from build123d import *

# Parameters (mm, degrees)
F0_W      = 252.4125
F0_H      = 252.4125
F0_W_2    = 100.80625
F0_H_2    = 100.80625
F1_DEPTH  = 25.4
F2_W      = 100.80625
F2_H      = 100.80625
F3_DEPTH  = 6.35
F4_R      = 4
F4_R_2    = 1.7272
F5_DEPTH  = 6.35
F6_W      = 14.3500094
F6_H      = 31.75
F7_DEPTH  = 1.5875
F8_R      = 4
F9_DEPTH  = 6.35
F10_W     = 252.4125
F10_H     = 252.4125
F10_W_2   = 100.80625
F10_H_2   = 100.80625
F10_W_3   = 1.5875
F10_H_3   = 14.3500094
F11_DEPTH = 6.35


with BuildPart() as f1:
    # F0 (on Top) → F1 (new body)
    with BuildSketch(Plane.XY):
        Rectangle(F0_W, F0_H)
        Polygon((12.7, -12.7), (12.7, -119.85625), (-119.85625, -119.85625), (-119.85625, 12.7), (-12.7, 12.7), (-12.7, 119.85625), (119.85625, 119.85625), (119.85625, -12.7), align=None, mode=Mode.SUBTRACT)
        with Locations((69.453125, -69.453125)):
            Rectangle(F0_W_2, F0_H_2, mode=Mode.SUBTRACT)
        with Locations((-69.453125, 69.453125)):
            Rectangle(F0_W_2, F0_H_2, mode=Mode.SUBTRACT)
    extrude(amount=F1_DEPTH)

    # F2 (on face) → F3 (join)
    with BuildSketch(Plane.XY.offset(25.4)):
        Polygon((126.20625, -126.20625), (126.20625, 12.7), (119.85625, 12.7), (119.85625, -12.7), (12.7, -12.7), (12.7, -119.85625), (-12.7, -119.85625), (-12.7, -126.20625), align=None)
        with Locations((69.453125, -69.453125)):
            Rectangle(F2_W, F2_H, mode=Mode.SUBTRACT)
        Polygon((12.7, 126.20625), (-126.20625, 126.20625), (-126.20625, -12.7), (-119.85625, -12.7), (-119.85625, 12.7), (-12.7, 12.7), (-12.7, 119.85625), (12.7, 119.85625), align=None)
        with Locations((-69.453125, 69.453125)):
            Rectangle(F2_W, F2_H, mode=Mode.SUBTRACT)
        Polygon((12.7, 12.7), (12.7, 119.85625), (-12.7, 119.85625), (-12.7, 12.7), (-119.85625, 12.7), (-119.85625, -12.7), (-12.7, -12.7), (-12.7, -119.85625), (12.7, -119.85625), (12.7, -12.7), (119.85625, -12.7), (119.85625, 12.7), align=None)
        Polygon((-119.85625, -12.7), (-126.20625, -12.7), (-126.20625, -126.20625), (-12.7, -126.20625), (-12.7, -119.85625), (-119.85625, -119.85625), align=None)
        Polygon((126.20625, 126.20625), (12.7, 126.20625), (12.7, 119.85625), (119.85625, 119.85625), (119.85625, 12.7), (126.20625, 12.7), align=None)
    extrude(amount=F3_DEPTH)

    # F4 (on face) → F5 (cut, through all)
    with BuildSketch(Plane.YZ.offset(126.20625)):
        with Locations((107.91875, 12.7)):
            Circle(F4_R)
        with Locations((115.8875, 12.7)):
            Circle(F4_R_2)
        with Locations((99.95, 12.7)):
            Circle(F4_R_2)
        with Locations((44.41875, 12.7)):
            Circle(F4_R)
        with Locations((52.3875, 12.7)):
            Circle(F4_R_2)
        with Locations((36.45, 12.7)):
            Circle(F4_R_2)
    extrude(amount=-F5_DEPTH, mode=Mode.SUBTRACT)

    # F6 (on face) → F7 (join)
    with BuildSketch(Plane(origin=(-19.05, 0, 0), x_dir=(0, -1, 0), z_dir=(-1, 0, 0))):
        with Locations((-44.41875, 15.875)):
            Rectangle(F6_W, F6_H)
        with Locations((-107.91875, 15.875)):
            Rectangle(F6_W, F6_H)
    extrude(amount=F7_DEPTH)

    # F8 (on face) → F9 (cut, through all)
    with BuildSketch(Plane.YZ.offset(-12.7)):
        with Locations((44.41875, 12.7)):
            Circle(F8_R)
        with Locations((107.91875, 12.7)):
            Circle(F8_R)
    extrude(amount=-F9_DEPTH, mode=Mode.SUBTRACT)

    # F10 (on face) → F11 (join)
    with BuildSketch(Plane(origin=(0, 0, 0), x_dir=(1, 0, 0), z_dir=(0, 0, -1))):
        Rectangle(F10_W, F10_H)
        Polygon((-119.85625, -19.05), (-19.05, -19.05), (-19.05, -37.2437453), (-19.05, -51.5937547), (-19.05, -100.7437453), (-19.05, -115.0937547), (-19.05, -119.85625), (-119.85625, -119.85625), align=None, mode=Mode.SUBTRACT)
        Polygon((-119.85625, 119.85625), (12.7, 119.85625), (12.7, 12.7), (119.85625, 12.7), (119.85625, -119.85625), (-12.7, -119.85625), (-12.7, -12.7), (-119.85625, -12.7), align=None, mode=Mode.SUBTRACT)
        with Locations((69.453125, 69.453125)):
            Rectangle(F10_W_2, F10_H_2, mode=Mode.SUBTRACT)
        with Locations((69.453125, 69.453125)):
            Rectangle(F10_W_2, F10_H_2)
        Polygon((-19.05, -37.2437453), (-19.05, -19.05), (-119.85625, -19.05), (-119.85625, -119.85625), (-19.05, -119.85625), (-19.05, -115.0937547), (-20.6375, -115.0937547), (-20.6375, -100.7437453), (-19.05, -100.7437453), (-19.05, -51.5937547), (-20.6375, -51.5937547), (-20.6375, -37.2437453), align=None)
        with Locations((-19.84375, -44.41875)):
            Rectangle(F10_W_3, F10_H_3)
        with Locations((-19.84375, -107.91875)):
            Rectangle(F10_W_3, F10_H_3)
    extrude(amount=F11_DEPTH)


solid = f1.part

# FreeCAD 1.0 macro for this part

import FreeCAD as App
import Part
import Sketcher

V = App.Vector
Q = App.Units.Quantity

doc = App.newDocument("Part")
params = doc.addObject("Spreadsheet::Sheet", "Params")
for row, (alias, value) in enumerate([
    ("sketch1_width", "9.9375 in"),
    ("sketch1_width2", "4.21875 in"),
    ("pad1_length", "1 in"),
    ("sketch2_width", "9.9375 in"),
    ("sketch2_width2", "4.21875 in"),
    ("pad2_length", "0.25 in"),
    ("sketch3_diameter", "0.136 in"),
    ("pocket1_length", "0.25 in"),
    ("sketch4_height", "1.25 in"),
    ("pad3_length", "0.0625 in"),
    ("pocket2_length", "0.25 in"),
    ("sketch6_width", "9.9375 in"),
    ("sketch6_width2", "5.21875 in"),
    ("pad4_length", "0.25 in"),
], start=1):
    params.set(f"A{row}", alias)
    params.set(f"B{row}", "=" + value)
    params.setAlias(f"B{row}", alias)

body = doc.addObject("PartDesign::Body", "Body")

sketch1 = body.newObject("Sketcher::SketchObject", "Sketch")
sketch1.AttachmentSupport = (doc.getObject("XY_Plane"), [""])
sketch1.MapMode = "FlatFace"
sketch1.addGeometry([
    Part.LineSegment(V(-126, 126, 0), V(-126, -126, 0)),
    Part.LineSegment(V(-126, -126, 0), V(126, -126, 0)),
    Part.LineSegment(V(126, -126, 0), V(126, 126, 0)),
    Part.LineSegment(V(126, 126, 0), V(-126, 126, 0)),
    Part.LineSegment(V(120, -13, 0), V(13, -13, 0)),
    Part.LineSegment(V(13, -13, 0), V(13, -120, 0)),
    Part.LineSegment(V(13, -120, 0), V(-120, -120, 0)),
    Part.LineSegment(V(-120, -120, 0), V(-120, 13, 0)),
    Part.LineSegment(V(-120, 13, 0), V(-13, 13, 0)),
    Part.LineSegment(V(-13, 13, 0), V(-13, 120, 0)),
    Part.LineSegment(V(-13, 120, 0), V(120, 120, 0)),
    Part.LineSegment(V(120, 120, 0), V(120, -13, 0)),
    Part.LineSegment(V(120, -120, 0), V(19, -120, 0)),
    Part.LineSegment(V(19, -120, 0), V(19, -19, 0)),
    Part.LineSegment(V(19, -19, 0), V(120, -19, 0)),
    Part.LineSegment(V(120, -19, 0), V(120, -120, 0)),
    Part.LineSegment(V(-19, 19, 0), V(-120, 19, 0)),
    Part.LineSegment(V(-120, 19, 0), V(-120, 120, 0)),
    Part.LineSegment(V(-120, 120, 0), V(-19, 120, 0)),
    Part.LineSegment(V(-19, 120, 0), V(-19, 19, 0)),
], False)
sketch1.addConstraint([
    Sketcher.Constraint("Coincident", 0, 2, 1, 1),
    Sketcher.Constraint("Coincident", 1, 2, 2, 1),
    Sketcher.Constraint("Coincident", 2, 2, 3, 1),
    Sketcher.Constraint("Coincident", 3, 2, 0, 1),
    Sketcher.Constraint("Coincident", 4, 2, 5, 1),
    Sketcher.Constraint("Coincident", 5, 2, 6, 1),
    Sketcher.Constraint("Coincident", 6, 2, 7, 1),
    Sketcher.Constraint("Coincident", 7, 2, 8, 1),
    Sketcher.Constraint("Coincident", 8, 2, 9, 1),
    Sketcher.Constraint("Coincident", 9, 2, 10, 1),
    Sketcher.Constraint("Coincident", 10, 2, 11, 1),
    Sketcher.Constraint("Coincident", 11, 2, 4, 1),
    Sketcher.Constraint("Coincident", 12, 2, 13, 1),
    Sketcher.Constraint("Coincident", 13, 2, 14, 1),
    Sketcher.Constraint("Coincident", 14, 2, 15, 1),
    Sketcher.Constraint("Coincident", 15, 2, 12, 1),
    Sketcher.Constraint("Coincident", 16, 2, 17, 1),
    Sketcher.Constraint("Coincident", 17, 2, 18, 1),
    Sketcher.Constraint("Coincident", 18, 2, 19, 1),
    Sketcher.Constraint("Coincident", 19, 2, 16, 1),
    Sketcher.Constraint("Vertical", 0),
    Sketcher.Constraint("Horizontal", 1),
    Sketcher.Constraint("Vertical", 2),
    Sketcher.Constraint("Horizontal", 3),
    Sketcher.Constraint("Horizontal", 4),
    Sketcher.Constraint("Vertical", 5),
    Sketcher.Constraint("Horizontal", 6),
    Sketcher.Constraint("Vertical", 7),
    Sketcher.Constraint("Horizontal", 8),
    Sketcher.Constraint("Vertical", 9),
    Sketcher.Constraint("Horizontal", 10),
    Sketcher.Constraint("Vertical", 11),
    Sketcher.Constraint("Horizontal", 12),
    Sketcher.Constraint("Vertical", 13),
    Sketcher.Constraint("Horizontal", 14),
    Sketcher.Constraint("Vertical", 15),
    Sketcher.Constraint("Horizontal", 16),
    Sketcher.Constraint("Vertical", 17),
    Sketcher.Constraint("Horizontal", 18),
    Sketcher.Constraint("Vertical", 19),
    Sketcher.Constraint("Symmetric", 0, 2, 2, 2, -1, 1),
    Sketcher.Constraint("Symmetric", 4, 2, 8, 2, -1, 1),
    Sketcher.Constraint("Symmetric", 6, 2, 10, 2, -1, 1),
    Sketcher.Constraint("Symmetric", 14, 2, 16, 2, -1, 1),
    Sketcher.Constraint("Symmetric", 12, 2, 18, 2, -1, 1),
    Sketcher.Constraint("Symmetric", 6, 2, 15, 2, -2),
    Sketcher.Constraint("Equal", 3, 0),
    Sketcher.Constraint("Equal", 8, 5),
    Sketcher.Constraint("Equal", 10, 7),
    Sketcher.Constraint("Equal", 18, 13),
    Sketcher.Constraint("DistanceY", 4, 2, 7, 2, Q("1 in")),
    Sketcher.Constraint("DistanceX", 19, 2, 13, 2, Q("1.5 in")),
    Sketcher.Constraint("DistanceX", 1, 1, 1, 2, Q("9.9375 in")),
    Sketcher.Constraint("DistanceX", 4, 2, 4, 1, Q("4.21875 in")),
])
sketch1.setExpression("Constraints[52]", "Params.sketch1_width")
sketch1.setExpression("Constraints[53]", "Params.sketch1_width2")
pad1 = body.newObject("PartDesign::Pad", "Pad")
pad1.Profile = sketch1
pad1.setExpression("Length", "Params.pad1_length")

sketch2 = body.newObject("Sketcher::SketchObject", "Sketch001")
sketch2.AttachmentSupport = (doc.getObject("XY_Plane"), [""])
sketch2.MapMode = "FlatFace"
sketch2.AttachmentOffset = App.Placement(V(0, 0, 1 * 25.4), App.Rotation())
sketch2.addGeometry([
    Part.LineSegment(V(126, -126, 0), V(126, 126, 0)),
    Part.LineSegment(V(126, 126, 0), V(-126, 126, 0)),
    Part.LineSegment(V(-126, 126, 0), V(-126, -126, 0)),
    Part.LineSegment(V(-126, -126, 0), V(126, -126, 0)),
    Part.LineSegment(V(120, 13, 0), V(13, 13, 0)),
    Part.LineSegment(V(13, 13, 0), V(13, 120, 0)),
    Part.LineSegment(V(13, 120, 0), V(120, 120, 0)),
    Part.LineSegment(V(120, 120, 0), V(120, 13, 0)),
    Part.LineSegment(V(-120, -13, 0), V(-13, -13, 0)),
    Part.LineSegment(V(-13, -13, 0), V(-13, -120, 0)),
    Part.LineSegment(V(-13, -120, 0), V(-120, -120, 0)),
    Part.LineSegment(V(-120, -120, 0), V(-120, -13, 0)),
    Part.LineSegment(V(120, -120, 0), V(19, -120, 0)),
    Part.LineSegment(V(19, -120, 0), V(19, -19, 0)),
    Part.LineSegment(V(19, -19, 0), V(120, -19, 0)),
    Part.LineSegment(V(120, -19, 0), V(120, -120, 0)),
    Part.LineSegment(V(-120, 19, 0), V(-120, 120, 0)),
    Part.LineSegment(V(-120, 120, 0), V(-19, 120, 0)),
    Part.LineSegment(V(-19, 120, 0), V(-19, 19, 0)),
    Part.LineSegment(V(-19, 19, 0), V(-120, 19, 0)),
], False)
sketch2.addConstraint([
    Sketcher.Constraint("Coincident", 0, 2, 1, 1),
    Sketcher.Constraint("Coincident", 1, 2, 2, 1),
    Sketcher.Constraint("Coincident", 2, 2, 3, 1),
    Sketcher.Constraint("Coincident", 3, 2, 0, 1),
    Sketcher.Constraint("Coincident", 4, 2, 5, 1),
    Sketcher.Constraint("Coincident", 5, 2, 6, 1),
    Sketcher.Constraint("Coincident", 6, 2, 7, 1),
    Sketcher.Constraint("Coincident", 7, 2, 4, 1),
    Sketcher.Constraint("Coincident", 8, 2, 9, 1),
    Sketcher.Constraint("Coincident", 9, 2, 10, 1),
    Sketcher.Constraint("Coincident", 10, 2, 11, 1),
    Sketcher.Constraint("Coincident", 11, 2, 8, 1),
    Sketcher.Constraint("Coincident", 12, 2, 13, 1),
    Sketcher.Constraint("Coincident", 13, 2, 14, 1),
    Sketcher.Constraint("Coincident", 14, 2, 15, 1),
    Sketcher.Constraint("Coincident", 15, 2, 12, 1),
    Sketcher.Constraint("Coincident", 16, 2, 17, 1),
    Sketcher.Constraint("Coincident", 17, 2, 18, 1),
    Sketcher.Constraint("Coincident", 18, 2, 19, 1),
    Sketcher.Constraint("Coincident", 19, 2, 16, 1),
    Sketcher.Constraint("Vertical", 0),
    Sketcher.Constraint("Horizontal", 1),
    Sketcher.Constraint("Vertical", 2),
    Sketcher.Constraint("Horizontal", 3),
    Sketcher.Constraint("Horizontal", 4),
    Sketcher.Constraint("Vertical", 5),
    Sketcher.Constraint("Horizontal", 6),
    Sketcher.Constraint("Vertical", 7),
    Sketcher.Constraint("Horizontal", 8),
    Sketcher.Constraint("Vertical", 9),
    Sketcher.Constraint("Horizontal", 10),
    Sketcher.Constraint("Vertical", 11),
    Sketcher.Constraint("Horizontal", 12),
    Sketcher.Constraint("Vertical", 13),
    Sketcher.Constraint("Horizontal", 14),
    Sketcher.Constraint("Vertical", 15),
    Sketcher.Constraint("Vertical", 16),
    Sketcher.Constraint("Horizontal", 17),
    Sketcher.Constraint("Vertical", 18),
    Sketcher.Constraint("Horizontal", 19),
    Sketcher.Constraint("Symmetric", 0, 2, 2, 2, -1, 1),
    Sketcher.Constraint("Symmetric", 4, 2, 8, 2, -1, 1),
    Sketcher.Constraint("Symmetric", 6, 2, 10, 2, -1, 1),
    Sketcher.Constraint("Symmetric", 15, 2, 16, 2, -1, 1),
    Sketcher.Constraint("Symmetric", 13, 2, 18, 2, -1, 1),
    Sketcher.Constraint("Symmetric", 10, 2, 15, 2, -2),
    Sketcher.Constraint("Equal", 3, 0),
    Sketcher.Constraint("Equal", 10, 5),
    Sketcher.Constraint("Equal", 19, 13),
    Sketcher.Constraint("DistanceX", 8, 2, 4, 2, Q("1 in")),
    Sketcher.Constraint("DistanceY", 8, 2, 4, 2, Q("1 in")),
    Sketcher.Constraint("DistanceX", 18, 2, 13, 2, Q("1.5 in")),
    Sketcher.Constraint("DistanceX", 1, 2, 1, 1, Q("9.9375 in")),
    Sketcher.Constraint("DistanceX", 4, 2, 4, 1, Q("4.21875 in")),
])
sketch2.setExpression("Constraints[52]", "Params.sketch2_width")
sketch2.setExpression("Constraints[53]", "Params.sketch2_width2")
pad2 = body.newObject("PartDesign::Pad", "Pad001")
pad2.Profile = sketch2
pad2.setExpression("Length", "Params.pad2_length")

sketch3 = body.newObject("Sketcher::SketchObject", "Sketch002")
sketch3.AttachmentSupport = (doc.getObject("YZ_Plane"), [""])
sketch3.MapMode = "FlatFace"
sketch3.AttachmentOffset = App.Placement(V(0, 0, 4.96875 * 25.4), App.Rotation())
sketch3.addGeometry([
    Part.Circle(V(107.9, 12.7, 0), V(0, 0, 1), 4),
    Part.Circle(V(115.9, 12.7, 0), V(0, 0, 1), 1.7),
    Part.Circle(V(100, 12.7, 0), V(0, 0, 1), 1.7),
    Part.Circle(V(44.4, 12.7, 0), V(0, 0, 1), 4),
    Part.Circle(V(52.4, 12.7, 0), V(0, 0, 1), 1.7),
    Part.Circle(V(36.5, 12.7, 0), V(0, 0, 1), 1.7),
], False)
sketch3.addConstraint([
    Sketcher.Constraint("Equal", 1, 2),
    Sketcher.Constraint("Equal", 0, 3),
    Sketcher.Constraint("Equal", 2, 4),
    Sketcher.Constraint("Equal", 4, 5),
    Sketcher.Constraint("Horizontal", 0, 3, 1, 3),
    Sketcher.Constraint("Horizontal", 1, 3, 2, 3),
    Sketcher.Constraint("Horizontal", 2, 3, 3, 3),
    Sketcher.Constraint("Horizontal", 3, 3, 4, 3),
    Sketcher.Constraint("Horizontal", 4, 3, 5, 3),
    Sketcher.Constraint("Diameter", 1, Q("0.136 in")),
    Sketcher.Constraint("DistanceY", -1, 1, 0, 3, Q("0.5 in")),
    Sketcher.Constraint("DistanceX", 3, 3, 0, 3, Q("2.5 in")),
    Sketcher.Constraint("DistanceX", 4, 3, 1, 3, Q("2.5 in")),
    Sketcher.Constraint("DistanceX", 5, 3, 2, 3, Q("2.5 in")),
    Sketcher.Constraint("Diameter", 0, 8.0),
    Sketcher.Constraint("DistanceX", -1, 1, 1, 3, Q("4.5625 in")),
    Sketcher.Constraint("DistanceX", -1, 1, 2, 3, 99.95),
    Sketcher.Constraint("DistanceX", -1, 1, 0, 3, 107.91875),
])
sketch3.setExpression("Constraints[9]", "Params.sketch3_diameter")
pocket1 = body.newObject("PartDesign::Pocket", "Pocket")
pocket1.Profile = sketch3
pocket1.setExpression("Length", "Params.pocket1_length")

sketch4 = body.newObject("Sketcher::SketchObject", "Sketch003")
sketch4.AttachmentSupport = (doc.getObject("YZ_Plane"), [""])
sketch4.MapMode = "FlatFace"
sketch4.AttachmentOffset = App.Placement(V(0, 0, -0.75 * 25.4), App.Rotation())
sketch4.addGeometry([
    Part.LineSegment(V(52, 32, 0), V(52, 0, 0)),
    Part.LineSegment(V(52, 0, 0), V(37, 0, 0)),
    Part.LineSegment(V(37, 0, 0), V(37, 32, 0)),
    Part.LineSegment(V(37, 32, 0), V(52, 32, 0)),
    Part.LineSegment(V(115, 32, 0), V(115, 0, 0)),
    Part.LineSegment(V(115, 0, 0), V(101, 0, 0)),
    Part.LineSegment(V(101, 0, 0), V(101, 32, 0)),
    Part.LineSegment(V(101, 32, 0), V(115, 32, 0)),
], False)
sketch4.addConstraint([
    Sketcher.Constraint("Coincident", 0, 2, 1, 1),
    Sketcher.Constraint("Coincident", 1, 2, 2, 1),
    Sketcher.Constraint("Coincident", 2, 2, 3, 1),
    Sketcher.Constraint("Coincident", 3, 2, 0, 1),
    Sketcher.Constraint("Coincident", 4, 2, 5, 1),
    Sketcher.Constraint("Coincident", 5, 2, 6, 1),
    Sketcher.Constraint("Coincident", 6, 2, 7, 1),
    Sketcher.Constraint("Coincident", 7, 2, 4, 1),
    Sketcher.Constraint("Vertical", 0),
    Sketcher.Constraint("Horizontal", 1),
    Sketcher.Constraint("Vertical", 2),
    Sketcher.Constraint("Horizontal", 3),
    Sketcher.Constraint("Vertical", 4),
    Sketcher.Constraint("Horizontal", 5),
    Sketcher.Constraint("Vertical", 6),
    Sketcher.Constraint("Horizontal", 7),
    Sketcher.Constraint("PointOnObject", 0, 2, -1),
    Sketcher.Constraint("PointOnObject", 4, 2, -1),
    Sketcher.Constraint("Horizontal", 3, 2, 6, 2),
    Sketcher.Constraint("Equal", 3, 5),
    Sketcher.Constraint("DistanceY", 0, 2, 0, 1, Q("1.25 in")),
    Sketcher.Constraint("DistanceX", 0, 2, 4, 2, Q("2.5 in")),
    Sketcher.Constraint("DistanceX", 1, 2, 1, 1, 14.350009),
    Sketcher.Constraint("DistanceX", -1, 1, 0, 2, 51.593755),
])
sketch4.setExpression("Constraints[20]", "Params.sketch4_height")
pad3 = body.newObject("PartDesign::Pad", "Pad002")
pad3.Profile = sketch4
pad3.setExpression("Length", "Params.pad3_length")
pad3.Reversed = True

sketch5 = body.newObject("Sketcher::SketchObject", "Sketch004")
sketch5.AttachmentSupport = (doc.getObject("YZ_Plane"), [""])
sketch5.MapMode = "FlatFace"
sketch5.AttachmentOffset = App.Placement(V(0, 0, -0.5 * 25.4), App.Rotation())
sketch5.addGeometry([
    Part.Circle(V(44.4, 12.7, 0), V(0, 0, 1), 4),
    Part.Circle(V(107.9, 12.7, 0), V(0, 0, 1), 4),
], False)
sketch5.addConstraint([
    Sketcher.Constraint("Equal", 0, 1),
    Sketcher.Constraint("Horizontal", 0, 3, 1, 3),
    Sketcher.Constraint("DistanceY", -1, 1, 0, 3, Q("0.5 in")),
    Sketcher.Constraint("DistanceX", 0, 3, 1, 3, Q("2.5 in")),
    Sketcher.Constraint("Diameter", 0, 8.0),
    Sketcher.Constraint("DistanceX", -1, 1, 0, 3, 44.41875),
])
pocket2 = body.newObject("PartDesign::Pocket", "Pocket001")
pocket2.Profile = sketch5
pocket2.setExpression("Length", "Params.pocket2_length")

sketch6 = body.newObject("Sketcher::SketchObject", "Sketch005")
sketch6.AttachmentSupport = (doc.getObject("XY_Plane"), [""])
sketch6.MapMode = "FlatFace"
sketch6.addGeometry([
    Part.LineSegment(V(-126, -126, 0), V(-126, 126, 0)),
    Part.LineSegment(V(-126, 126, 0), V(126, 126, 0)),
    Part.LineSegment(V(126, 126, 0), V(126, -126, 0)),
    Part.LineSegment(V(126, -126, 0), V(-126, -126, 0)),
    Part.LineSegment(V(-120, 13, 0), V(-120, -120, 0)),
    Part.LineSegment(V(-120, -120, 0), V(13, -120, 0)),
    Part.LineSegment(V(13, -120, 0), V(13, -13, 0)),
    Part.LineSegment(V(13, -13, 0), V(120, -13, 0)),
    Part.LineSegment(V(120, -13, 0), V(120, 120, 0)),
    Part.LineSegment(V(120, 120, 0), V(-13, 120, 0)),
    Part.LineSegment(V(-13, 120, 0), V(-13, 13, 0)),
    Part.LineSegment(V(-13, 13, 0), V(-120, 13, 0)),
], False)
sketch6.addConstraint([
    Sketcher.Constraint("Coincident", 0, 2, 1, 1),
    Sketcher.Constraint("Coincident", 1, 2, 2, 1),
    Sketcher.Constraint("Coincident", 2, 2, 3, 1),
    Sketcher.Constraint("Coincident", 3, 2, 0, 1),
    Sketcher.Constraint("Coincident", 4, 2, 5, 1),
    Sketcher.Constraint("Coincident", 5, 2, 6, 1),
    Sketcher.Constraint("Coincident", 6, 2, 7, 1),
    Sketcher.Constraint("Coincident", 7, 2, 8, 1),
    Sketcher.Constraint("Coincident", 8, 2, 9, 1),
    Sketcher.Constraint("Coincident", 9, 2, 10, 1),
    Sketcher.Constraint("Coincident", 10, 2, 11, 1),
    Sketcher.Constraint("Coincident", 11, 2, 4, 1),
    Sketcher.Constraint("Vertical", 0),
    Sketcher.Constraint("Horizontal", 1),
    Sketcher.Constraint("Vertical", 2),
    Sketcher.Constraint("Horizontal", 3),
    Sketcher.Constraint("Vertical", 4),
    Sketcher.Constraint("Horizontal", 5),
    Sketcher.Constraint("Vertical", 6),
    Sketcher.Constraint("Horizontal", 7),
    Sketcher.Constraint("Vertical", 8),
    Sketcher.Constraint("Horizontal", 9),
    Sketcher.Constraint("Vertical", 10),
    Sketcher.Constraint("Horizontal", 11),
    Sketcher.Constraint("Symmetric", 0, 2, 2, 2, -1, 1),
    Sketcher.Constraint("Symmetric", 4, 2, 8, 2, -1, 1),
    Sketcher.Constraint("Symmetric", 6, 2, 10, 2, -1, 1),
    Sketcher.Constraint("Equal", 3, 0),
    Sketcher.Constraint("Equal", 9, 4),
    Sketcher.Constraint("Equal", 11, 6),
    Sketcher.Constraint("DistanceX", 9, 2, 6, 2, Q("1 in")),
    Sketcher.Constraint("DistanceX", 1, 1, 1, 2, Q("9.9375 in")),
    Sketcher.Constraint("DistanceX", 5, 1, 5, 2, Q("5.21875 in")),
])
sketch6.setExpression("Constraints[31]", "Params.sketch6_width")
sketch6.setExpression("Constraints[32]", "Params.sketch6_width2")
pad4 = body.newObject("PartDesign::Pad", "Pad003")
pad4.Profile = sketch6
pad4.setExpression("Length", "Params.pad4_length")
pad4.Reversed = True

doc.recompute()
